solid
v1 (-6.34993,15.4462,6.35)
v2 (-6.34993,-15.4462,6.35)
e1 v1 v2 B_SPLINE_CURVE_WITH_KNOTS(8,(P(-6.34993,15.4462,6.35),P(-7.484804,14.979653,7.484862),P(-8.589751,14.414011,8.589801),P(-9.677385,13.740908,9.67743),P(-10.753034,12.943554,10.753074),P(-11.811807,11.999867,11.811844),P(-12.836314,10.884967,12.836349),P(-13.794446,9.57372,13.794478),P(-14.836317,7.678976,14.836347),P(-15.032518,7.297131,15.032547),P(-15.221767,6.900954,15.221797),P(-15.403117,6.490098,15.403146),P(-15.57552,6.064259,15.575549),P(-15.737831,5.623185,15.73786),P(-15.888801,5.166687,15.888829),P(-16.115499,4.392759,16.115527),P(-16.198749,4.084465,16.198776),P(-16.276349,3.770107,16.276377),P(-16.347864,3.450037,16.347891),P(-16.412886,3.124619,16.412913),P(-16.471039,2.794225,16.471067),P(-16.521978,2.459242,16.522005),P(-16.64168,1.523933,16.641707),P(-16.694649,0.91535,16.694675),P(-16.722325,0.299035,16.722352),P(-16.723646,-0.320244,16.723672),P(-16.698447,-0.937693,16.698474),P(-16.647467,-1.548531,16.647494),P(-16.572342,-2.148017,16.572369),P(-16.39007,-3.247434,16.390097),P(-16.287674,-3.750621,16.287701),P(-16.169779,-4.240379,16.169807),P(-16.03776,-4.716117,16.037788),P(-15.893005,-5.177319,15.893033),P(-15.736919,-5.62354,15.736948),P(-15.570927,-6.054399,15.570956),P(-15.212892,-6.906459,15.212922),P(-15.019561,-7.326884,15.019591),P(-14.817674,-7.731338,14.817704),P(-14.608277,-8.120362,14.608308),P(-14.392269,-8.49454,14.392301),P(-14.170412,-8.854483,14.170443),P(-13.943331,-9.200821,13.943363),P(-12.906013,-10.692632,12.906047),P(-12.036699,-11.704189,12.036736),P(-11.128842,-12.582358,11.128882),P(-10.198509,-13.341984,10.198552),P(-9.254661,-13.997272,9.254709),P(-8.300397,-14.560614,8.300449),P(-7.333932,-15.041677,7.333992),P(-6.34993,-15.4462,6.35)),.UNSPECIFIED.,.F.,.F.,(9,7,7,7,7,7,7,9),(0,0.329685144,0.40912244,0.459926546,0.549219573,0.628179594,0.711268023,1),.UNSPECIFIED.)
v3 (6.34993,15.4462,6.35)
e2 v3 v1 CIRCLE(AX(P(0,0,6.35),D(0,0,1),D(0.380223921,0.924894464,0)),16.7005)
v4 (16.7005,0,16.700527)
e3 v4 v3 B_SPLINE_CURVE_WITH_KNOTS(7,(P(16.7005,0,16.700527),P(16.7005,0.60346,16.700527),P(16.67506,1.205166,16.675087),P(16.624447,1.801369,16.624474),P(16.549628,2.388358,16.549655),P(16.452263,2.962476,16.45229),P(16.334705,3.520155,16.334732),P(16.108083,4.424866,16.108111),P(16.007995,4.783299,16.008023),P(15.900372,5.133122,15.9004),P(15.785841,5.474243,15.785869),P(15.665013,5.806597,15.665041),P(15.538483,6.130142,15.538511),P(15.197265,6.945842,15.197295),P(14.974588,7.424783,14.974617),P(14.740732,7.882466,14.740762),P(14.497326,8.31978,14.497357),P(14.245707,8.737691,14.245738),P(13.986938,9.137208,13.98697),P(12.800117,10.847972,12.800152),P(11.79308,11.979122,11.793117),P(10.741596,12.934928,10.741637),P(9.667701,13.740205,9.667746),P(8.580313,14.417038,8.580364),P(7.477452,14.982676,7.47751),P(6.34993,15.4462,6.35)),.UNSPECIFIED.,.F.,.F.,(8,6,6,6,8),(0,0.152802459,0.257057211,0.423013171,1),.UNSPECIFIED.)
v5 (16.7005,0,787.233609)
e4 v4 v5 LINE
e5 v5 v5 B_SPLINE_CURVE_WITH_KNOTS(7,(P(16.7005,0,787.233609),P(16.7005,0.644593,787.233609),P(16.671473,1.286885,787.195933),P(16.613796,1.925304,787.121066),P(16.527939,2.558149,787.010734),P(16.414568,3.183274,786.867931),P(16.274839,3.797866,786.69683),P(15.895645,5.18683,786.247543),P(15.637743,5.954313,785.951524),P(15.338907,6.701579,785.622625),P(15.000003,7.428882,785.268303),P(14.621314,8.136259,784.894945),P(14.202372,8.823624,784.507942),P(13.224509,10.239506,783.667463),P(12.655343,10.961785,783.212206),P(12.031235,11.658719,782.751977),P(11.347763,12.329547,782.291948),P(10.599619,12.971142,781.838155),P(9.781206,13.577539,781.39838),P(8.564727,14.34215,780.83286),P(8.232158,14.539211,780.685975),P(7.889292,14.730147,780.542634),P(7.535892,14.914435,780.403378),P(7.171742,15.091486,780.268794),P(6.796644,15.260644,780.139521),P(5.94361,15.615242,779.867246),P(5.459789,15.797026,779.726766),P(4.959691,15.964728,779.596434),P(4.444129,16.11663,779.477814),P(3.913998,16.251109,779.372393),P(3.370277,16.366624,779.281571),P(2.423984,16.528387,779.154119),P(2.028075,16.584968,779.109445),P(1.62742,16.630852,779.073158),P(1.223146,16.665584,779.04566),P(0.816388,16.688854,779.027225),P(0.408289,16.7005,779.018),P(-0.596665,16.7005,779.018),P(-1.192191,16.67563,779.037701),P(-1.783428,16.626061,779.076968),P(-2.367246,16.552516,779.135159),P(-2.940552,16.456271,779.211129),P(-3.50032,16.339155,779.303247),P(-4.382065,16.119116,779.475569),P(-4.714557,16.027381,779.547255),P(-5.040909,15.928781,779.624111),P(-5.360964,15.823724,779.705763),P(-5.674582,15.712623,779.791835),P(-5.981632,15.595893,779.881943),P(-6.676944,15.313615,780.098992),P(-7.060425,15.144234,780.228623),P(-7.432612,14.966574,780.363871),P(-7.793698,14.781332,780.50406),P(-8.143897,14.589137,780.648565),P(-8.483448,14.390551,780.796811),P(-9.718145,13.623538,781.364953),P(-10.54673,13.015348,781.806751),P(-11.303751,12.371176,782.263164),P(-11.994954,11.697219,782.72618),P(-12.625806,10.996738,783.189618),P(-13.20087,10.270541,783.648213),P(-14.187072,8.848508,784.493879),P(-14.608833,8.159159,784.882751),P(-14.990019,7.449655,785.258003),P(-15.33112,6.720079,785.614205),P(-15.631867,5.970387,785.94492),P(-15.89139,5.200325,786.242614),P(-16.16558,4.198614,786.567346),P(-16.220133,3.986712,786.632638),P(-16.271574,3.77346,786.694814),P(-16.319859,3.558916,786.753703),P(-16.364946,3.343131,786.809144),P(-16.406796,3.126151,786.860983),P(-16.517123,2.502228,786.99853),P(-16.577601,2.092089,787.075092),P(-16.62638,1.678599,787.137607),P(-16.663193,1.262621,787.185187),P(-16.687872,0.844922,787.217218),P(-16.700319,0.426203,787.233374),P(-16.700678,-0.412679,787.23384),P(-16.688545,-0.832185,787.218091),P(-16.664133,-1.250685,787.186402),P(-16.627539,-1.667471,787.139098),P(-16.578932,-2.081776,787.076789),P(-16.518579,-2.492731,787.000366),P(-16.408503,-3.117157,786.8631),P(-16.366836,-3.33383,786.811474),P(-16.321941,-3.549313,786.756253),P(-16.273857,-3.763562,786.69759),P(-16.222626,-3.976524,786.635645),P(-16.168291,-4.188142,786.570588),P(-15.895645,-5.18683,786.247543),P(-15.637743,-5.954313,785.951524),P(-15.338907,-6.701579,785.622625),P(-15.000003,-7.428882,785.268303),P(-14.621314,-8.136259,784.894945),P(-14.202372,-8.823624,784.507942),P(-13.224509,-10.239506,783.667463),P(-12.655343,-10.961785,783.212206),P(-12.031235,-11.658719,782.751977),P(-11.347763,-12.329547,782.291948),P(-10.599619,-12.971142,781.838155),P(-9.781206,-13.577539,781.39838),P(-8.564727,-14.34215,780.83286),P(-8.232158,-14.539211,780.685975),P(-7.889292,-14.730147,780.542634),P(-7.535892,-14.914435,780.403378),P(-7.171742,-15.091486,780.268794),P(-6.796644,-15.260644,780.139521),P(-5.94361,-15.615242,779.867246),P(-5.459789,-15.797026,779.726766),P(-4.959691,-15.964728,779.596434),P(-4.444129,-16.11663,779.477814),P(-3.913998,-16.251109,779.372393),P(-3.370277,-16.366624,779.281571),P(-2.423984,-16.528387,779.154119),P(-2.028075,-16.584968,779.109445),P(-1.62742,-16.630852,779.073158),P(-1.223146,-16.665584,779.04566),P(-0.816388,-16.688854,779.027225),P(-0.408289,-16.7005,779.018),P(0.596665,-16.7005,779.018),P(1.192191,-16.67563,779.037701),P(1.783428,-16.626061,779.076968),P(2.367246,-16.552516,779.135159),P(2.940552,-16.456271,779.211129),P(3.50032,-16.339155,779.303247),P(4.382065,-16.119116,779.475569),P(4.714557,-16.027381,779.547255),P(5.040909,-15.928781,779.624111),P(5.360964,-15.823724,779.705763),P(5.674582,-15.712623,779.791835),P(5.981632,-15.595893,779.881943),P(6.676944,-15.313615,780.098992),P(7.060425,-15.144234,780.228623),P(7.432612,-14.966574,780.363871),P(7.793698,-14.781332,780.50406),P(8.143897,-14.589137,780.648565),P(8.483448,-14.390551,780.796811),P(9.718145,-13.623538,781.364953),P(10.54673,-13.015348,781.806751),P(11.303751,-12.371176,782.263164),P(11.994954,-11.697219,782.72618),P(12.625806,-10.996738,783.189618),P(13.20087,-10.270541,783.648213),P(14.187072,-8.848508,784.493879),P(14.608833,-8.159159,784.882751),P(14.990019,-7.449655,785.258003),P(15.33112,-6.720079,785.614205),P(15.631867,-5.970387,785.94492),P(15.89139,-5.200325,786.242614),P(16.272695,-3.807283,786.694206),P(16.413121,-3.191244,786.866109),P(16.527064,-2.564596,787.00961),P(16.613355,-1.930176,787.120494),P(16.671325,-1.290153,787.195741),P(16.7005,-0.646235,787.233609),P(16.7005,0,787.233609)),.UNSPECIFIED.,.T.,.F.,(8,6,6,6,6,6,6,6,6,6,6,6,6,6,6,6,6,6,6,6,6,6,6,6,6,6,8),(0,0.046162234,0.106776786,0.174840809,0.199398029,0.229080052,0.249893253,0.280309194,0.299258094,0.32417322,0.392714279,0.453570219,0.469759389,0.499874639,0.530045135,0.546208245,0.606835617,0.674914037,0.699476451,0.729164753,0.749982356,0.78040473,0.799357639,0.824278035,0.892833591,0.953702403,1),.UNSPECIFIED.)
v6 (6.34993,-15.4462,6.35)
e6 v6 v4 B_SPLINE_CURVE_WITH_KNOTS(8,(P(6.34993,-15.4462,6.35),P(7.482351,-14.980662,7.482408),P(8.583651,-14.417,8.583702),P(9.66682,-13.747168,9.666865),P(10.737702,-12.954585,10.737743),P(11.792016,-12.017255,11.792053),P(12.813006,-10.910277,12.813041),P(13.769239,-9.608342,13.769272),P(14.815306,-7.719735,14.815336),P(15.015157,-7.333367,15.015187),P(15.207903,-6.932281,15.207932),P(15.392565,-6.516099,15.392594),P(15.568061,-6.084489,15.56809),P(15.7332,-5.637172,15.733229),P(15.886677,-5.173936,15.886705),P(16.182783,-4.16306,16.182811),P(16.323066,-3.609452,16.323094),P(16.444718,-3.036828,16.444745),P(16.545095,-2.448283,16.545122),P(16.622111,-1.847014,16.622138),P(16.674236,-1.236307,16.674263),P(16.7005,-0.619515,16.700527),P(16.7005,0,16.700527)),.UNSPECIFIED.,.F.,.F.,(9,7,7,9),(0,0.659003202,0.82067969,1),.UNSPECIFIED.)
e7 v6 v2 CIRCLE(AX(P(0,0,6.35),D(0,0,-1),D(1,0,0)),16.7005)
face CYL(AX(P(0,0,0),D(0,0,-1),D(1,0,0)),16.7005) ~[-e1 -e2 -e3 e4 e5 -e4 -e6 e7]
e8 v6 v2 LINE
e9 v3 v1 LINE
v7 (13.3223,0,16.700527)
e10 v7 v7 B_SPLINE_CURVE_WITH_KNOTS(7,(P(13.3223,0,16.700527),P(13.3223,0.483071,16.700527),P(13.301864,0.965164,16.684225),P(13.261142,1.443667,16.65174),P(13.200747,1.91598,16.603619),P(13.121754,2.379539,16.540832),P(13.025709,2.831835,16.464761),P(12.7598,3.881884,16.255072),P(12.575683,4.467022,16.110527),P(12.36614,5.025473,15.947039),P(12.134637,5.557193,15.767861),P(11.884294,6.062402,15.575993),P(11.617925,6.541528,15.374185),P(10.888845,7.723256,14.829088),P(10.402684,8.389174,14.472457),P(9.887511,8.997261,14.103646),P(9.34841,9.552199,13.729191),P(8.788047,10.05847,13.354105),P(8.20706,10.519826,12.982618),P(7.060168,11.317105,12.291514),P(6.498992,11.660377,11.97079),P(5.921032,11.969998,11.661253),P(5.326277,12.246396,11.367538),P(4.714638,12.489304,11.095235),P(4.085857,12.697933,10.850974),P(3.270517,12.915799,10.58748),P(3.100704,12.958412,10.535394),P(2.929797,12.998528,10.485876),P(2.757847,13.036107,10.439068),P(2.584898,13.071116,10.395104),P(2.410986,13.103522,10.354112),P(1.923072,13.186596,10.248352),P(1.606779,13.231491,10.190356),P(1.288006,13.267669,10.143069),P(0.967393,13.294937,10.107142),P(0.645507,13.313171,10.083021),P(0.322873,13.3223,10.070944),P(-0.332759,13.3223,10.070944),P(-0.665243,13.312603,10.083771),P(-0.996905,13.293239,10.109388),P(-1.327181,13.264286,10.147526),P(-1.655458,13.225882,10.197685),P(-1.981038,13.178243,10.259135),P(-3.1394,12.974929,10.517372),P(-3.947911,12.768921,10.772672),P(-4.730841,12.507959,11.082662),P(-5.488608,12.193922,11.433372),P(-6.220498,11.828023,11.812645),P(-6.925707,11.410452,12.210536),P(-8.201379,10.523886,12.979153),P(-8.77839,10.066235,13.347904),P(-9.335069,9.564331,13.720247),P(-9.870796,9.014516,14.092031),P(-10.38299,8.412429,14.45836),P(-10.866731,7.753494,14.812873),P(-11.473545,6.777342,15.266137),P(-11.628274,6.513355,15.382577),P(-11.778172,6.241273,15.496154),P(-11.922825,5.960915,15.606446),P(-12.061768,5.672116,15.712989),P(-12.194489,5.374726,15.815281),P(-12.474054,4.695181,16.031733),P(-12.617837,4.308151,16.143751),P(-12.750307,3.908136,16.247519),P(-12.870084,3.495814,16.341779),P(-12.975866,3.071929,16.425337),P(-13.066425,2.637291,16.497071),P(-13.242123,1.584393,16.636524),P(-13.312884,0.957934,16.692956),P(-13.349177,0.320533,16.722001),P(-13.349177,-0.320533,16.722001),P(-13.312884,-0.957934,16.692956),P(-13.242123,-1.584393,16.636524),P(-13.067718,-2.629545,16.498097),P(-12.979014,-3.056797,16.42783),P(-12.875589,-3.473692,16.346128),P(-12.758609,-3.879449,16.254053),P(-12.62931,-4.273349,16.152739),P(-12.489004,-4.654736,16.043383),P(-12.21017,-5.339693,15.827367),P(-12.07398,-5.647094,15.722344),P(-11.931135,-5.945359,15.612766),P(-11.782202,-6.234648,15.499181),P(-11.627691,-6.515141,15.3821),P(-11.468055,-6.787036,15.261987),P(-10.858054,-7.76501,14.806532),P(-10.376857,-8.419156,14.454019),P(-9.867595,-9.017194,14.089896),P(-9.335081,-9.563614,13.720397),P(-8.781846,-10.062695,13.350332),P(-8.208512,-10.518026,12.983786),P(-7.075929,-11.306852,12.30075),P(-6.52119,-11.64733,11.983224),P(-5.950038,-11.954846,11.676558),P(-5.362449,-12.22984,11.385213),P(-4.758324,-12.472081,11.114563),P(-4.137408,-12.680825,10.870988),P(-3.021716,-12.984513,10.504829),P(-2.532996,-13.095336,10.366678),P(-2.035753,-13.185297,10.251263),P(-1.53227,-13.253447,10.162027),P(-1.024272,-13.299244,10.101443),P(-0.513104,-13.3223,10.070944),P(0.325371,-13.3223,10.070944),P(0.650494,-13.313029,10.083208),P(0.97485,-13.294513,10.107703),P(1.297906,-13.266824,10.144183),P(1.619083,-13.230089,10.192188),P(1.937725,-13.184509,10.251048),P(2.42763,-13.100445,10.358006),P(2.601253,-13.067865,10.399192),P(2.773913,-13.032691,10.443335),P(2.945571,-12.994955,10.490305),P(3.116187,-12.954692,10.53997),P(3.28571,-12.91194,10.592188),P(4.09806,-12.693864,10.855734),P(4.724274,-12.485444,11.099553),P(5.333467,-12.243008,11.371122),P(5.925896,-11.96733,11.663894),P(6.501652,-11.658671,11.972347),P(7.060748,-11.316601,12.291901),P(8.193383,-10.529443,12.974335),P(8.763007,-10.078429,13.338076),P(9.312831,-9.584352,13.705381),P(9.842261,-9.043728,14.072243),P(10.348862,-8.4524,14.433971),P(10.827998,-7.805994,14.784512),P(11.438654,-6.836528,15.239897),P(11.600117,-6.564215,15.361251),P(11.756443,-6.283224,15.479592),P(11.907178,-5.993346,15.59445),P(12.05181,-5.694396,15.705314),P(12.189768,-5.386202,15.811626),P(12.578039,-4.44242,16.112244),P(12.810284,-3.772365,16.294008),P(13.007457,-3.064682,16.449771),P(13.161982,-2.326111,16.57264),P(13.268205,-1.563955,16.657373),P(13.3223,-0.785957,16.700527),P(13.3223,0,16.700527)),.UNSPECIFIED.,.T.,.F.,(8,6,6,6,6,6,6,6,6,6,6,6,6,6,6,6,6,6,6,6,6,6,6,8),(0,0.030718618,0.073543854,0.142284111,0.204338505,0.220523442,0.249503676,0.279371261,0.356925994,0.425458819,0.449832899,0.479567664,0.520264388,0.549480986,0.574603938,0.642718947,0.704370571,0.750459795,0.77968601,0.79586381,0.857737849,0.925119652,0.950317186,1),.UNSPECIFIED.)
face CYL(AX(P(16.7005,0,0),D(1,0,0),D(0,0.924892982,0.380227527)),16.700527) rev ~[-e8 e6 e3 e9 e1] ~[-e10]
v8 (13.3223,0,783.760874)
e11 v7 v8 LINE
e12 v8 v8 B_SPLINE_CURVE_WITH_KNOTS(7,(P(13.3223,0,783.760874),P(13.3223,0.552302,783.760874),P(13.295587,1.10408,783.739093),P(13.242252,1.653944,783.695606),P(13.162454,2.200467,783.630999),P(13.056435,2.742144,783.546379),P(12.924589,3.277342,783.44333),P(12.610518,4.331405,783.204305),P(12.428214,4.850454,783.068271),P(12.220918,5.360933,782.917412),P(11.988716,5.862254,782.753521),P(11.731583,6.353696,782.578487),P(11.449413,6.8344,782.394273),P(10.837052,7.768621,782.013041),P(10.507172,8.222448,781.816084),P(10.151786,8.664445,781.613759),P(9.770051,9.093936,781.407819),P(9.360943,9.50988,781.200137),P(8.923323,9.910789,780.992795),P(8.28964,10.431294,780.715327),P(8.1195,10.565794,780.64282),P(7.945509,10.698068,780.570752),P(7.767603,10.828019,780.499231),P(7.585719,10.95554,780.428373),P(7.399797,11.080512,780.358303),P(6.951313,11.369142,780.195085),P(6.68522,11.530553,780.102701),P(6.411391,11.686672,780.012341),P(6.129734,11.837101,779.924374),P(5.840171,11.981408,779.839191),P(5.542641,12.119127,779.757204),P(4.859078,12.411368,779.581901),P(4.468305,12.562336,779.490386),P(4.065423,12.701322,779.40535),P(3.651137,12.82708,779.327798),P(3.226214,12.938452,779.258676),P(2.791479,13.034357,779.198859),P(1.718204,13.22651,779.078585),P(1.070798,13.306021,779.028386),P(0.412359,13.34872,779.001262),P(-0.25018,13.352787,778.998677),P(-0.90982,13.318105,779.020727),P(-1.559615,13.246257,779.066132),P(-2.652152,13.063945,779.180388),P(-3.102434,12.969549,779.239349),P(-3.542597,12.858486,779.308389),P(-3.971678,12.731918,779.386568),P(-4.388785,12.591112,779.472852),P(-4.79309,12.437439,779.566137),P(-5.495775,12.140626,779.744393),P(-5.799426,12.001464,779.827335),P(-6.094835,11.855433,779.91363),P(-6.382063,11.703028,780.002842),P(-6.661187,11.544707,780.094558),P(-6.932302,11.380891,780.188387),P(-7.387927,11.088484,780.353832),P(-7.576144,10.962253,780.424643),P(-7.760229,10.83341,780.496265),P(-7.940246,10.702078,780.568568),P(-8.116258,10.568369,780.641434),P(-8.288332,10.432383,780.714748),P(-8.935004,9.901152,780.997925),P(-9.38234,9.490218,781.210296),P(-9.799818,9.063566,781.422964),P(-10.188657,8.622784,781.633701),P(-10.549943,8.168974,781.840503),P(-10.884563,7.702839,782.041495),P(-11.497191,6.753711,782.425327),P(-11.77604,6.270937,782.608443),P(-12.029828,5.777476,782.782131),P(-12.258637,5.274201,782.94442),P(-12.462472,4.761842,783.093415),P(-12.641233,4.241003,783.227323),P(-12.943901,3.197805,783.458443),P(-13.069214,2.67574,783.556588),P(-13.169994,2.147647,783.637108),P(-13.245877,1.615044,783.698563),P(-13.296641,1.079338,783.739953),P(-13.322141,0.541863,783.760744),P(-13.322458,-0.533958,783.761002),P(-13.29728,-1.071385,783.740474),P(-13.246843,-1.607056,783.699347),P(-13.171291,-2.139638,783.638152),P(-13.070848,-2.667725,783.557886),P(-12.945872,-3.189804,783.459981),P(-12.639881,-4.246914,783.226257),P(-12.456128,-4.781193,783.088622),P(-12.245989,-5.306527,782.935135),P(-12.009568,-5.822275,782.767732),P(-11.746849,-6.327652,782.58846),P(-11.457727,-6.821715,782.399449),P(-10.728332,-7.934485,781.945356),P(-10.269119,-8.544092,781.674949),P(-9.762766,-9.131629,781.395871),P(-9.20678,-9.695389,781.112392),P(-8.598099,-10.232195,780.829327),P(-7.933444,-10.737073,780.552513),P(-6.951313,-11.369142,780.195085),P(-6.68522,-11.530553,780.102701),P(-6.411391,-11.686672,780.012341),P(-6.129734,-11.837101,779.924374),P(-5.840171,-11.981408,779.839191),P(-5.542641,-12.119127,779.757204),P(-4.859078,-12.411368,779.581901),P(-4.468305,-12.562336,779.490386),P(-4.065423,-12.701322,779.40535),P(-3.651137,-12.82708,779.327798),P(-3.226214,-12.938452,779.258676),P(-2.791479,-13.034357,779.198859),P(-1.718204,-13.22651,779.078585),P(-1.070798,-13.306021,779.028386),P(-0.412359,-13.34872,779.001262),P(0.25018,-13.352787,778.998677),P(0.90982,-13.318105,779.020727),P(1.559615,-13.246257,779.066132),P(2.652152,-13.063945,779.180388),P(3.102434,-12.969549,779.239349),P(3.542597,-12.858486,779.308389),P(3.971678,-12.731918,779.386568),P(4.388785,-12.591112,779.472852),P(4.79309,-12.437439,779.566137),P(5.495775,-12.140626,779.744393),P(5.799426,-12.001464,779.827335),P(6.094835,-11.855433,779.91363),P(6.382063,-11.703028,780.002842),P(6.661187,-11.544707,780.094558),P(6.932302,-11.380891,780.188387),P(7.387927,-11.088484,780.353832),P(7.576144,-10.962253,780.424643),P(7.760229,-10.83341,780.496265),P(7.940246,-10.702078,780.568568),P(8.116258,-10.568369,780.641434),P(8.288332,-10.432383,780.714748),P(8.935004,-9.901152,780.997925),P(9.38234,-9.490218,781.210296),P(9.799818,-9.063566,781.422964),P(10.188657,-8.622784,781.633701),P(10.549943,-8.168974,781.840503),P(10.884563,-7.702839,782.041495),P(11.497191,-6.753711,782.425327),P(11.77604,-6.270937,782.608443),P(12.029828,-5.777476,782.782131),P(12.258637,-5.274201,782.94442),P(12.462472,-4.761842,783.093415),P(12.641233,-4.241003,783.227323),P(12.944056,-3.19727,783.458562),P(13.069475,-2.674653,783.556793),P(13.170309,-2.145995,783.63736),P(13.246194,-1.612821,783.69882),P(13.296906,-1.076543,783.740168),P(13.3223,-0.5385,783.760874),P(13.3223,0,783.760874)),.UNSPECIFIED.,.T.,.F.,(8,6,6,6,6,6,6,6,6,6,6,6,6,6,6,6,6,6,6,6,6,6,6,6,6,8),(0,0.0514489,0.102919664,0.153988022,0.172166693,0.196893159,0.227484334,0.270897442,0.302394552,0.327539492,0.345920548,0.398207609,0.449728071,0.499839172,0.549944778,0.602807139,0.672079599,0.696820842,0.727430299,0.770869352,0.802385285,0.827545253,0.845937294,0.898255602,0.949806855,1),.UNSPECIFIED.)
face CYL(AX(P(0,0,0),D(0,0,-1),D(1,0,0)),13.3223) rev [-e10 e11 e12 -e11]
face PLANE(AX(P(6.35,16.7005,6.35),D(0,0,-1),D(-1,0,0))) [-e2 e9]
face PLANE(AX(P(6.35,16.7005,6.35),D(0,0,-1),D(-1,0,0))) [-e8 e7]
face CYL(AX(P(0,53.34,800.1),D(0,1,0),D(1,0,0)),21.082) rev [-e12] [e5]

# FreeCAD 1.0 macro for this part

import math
import FreeCAD as App
import Part
import Sketcher
from FreeCAD import Vector
Q = App.Units.Quantity

doc = App.newDocument("Part")
body = doc.addObject("PartDesign::Body", "Body")

sketch1 = body.newObject("Sketcher::SketchObject", "Sketch")
sketch1.AttachmentSupport = (doc.getObject("XY_Plane"), [""])
sketch1.MapMode = "FlatFace"
sketch1.addGeometry(Part.Circle(Vector(0, 0, 0), Vector(0, 0, 1), 17), False)
sketch1.addGeometry(Part.Circle(Vector(0, 0, 0), Vector(0, 0, 1), 13), False)
sketch1.addConstraint(Sketcher.Constraint("Coincident", 0, 3, -1, 1))
sketch1.addConstraint(Sketcher.Constraint("Coincident", 1, 3, -1, 1))
sketch1.addConstraint(Sketcher.Constraint("Diameter", 0, Q("1.315 in")))
sketch1.addConstraint(Sketcher.Constraint("Diameter", 1, Q("1.049 in")))
pad1 = body.newObject("PartDesign::Pad", "Pad")
pad1.Profile = sketch1
pad1.Length = Q("31.5 in")

sketch2 = body.newObject("Sketcher::SketchObject", "Sketch001")
sketch2.AttachmentSupport = (doc.getObject("XZ_Plane"), [""])
sketch2.MapMode = "FlatFace"
sketch2.AttachmentOffset = App.Placement(Vector(0, 0, -2.1 * 25.4), App.Rotation())
sketch2.addGeometry(Part.Circle(Vector(0, 800, 0), Vector(0, 0, 1), 21), False)
sketch2.addConstraint(Sketcher.Constraint("PointOnObject", 0, 3, -2))
sketch2.addConstraint(Sketcher.Constraint("Diameter", 0, Q("1.66 in")))
sketch2.addConstraint(Sketcher.Constraint("DistanceY", -1, 1, 0, 3, Q("31.5 in")))
pocket1 = body.newObject("PartDesign::Pocket", "Pocket")
pocket1.Profile = sketch2
pocket1.Length = Q("3 in")
pocket1.Reversed = True

sketch3 = body.newObject("Sketcher::SketchObject", "Sketch002")
sketch3.AttachmentSupport = (doc.getObject("YZ_Plane"), [""])
sketch3.MapMode = "FlatFace"
sketch3.AttachmentOffset = App.Placement(Vector(0, 0, 0.6575 * 25.4), App.Rotation())
sketch3.addGeometry(Part.ArcOfCircle(Part.Circle(Vector(0, 0, 0), Vector(0, 0, 1), 17), math.radians(0), math.radians(180)), False)
sketch3.addGeometry(Part.LineSegment(Vector(-17, 0, 0), Vector(17, 0, 0)), False)
sketch3.addConstraint(Sketcher.Constraint("Coincident", 0, 1, 1, 2))
sketch3.addConstraint(Sketcher.Constraint("Coincident", 1, 1, 0, 2))
sketch3.addConstraint(Sketcher.Constraint("Horizontal", 1))
sketch3.addConstraint(Sketcher.Constraint("Coincident", 0, 3, -1, 1))
sketch3.addConstraint(Sketcher.Constraint("PointOnObject", 0, 1, -1))
sketch3.addConstraint(Sketcher.Constraint("Radius", 0, Q("0.6575 in")))
pocket2 = body.newObject("PartDesign::Pocket", "Pocket001")
pocket2.Profile = sketch3
pocket2.Type = "ThroughAll"

sketch4 = body.newObject("Sketcher::SketchObject", "Sketch003")
sketch4.AttachmentSupport = (doc.getObject("XZ_Plane"), [""])
sketch4.MapMode = "FlatFace"
sketch4.AttachmentOffset = App.Placement(Vector(0, 0, -0.6575 * 25.4), App.Rotation())
sketch4.addGeometry(Part.LineSegment(Vector(6, 6, 0), Vector(0, 0, 0)), False)
sketch4.addGeometry(Part.LineSegment(Vector(0, 0, 0), Vector(-6, 6, 0)), False)
sketch4.addGeometry(Part.LineSegment(Vector(-6, 6, 0), Vector(6, 6, 0)), False)
sketch4.addConstraint(Sketcher.Constraint("Coincident", 0, 2, 1, 1))
sketch4.addConstraint(Sketcher.Constraint("Coincident", 1, 2, 2, 1))
sketch4.addConstraint(Sketcher.Constraint("Coincident", 2, 2, 0, 1))
sketch4.addConstraint(Sketcher.Constraint("Horizontal", 2))
sketch4.addConstraint(Sketcher.Constraint("Coincident", 0, 2, -1, 1))
sketch4.addConstraint(Sketcher.Constraint("Perpendicular", 0, 1))
sketch4.addConstraint(Sketcher.Constraint("Equal", 0, 1))
sketch4.addConstraint(Sketcher.Constraint("DistanceX", 1, 2, -1, 1, Q("0.25 in")))
pocket3 = body.newObject("PartDesign::Pocket", "Pocket002")
pocket3.Profile = sketch4
pocket3.Type = "ThroughAll"
pocket3.Reversed = True

doc.recompute()
